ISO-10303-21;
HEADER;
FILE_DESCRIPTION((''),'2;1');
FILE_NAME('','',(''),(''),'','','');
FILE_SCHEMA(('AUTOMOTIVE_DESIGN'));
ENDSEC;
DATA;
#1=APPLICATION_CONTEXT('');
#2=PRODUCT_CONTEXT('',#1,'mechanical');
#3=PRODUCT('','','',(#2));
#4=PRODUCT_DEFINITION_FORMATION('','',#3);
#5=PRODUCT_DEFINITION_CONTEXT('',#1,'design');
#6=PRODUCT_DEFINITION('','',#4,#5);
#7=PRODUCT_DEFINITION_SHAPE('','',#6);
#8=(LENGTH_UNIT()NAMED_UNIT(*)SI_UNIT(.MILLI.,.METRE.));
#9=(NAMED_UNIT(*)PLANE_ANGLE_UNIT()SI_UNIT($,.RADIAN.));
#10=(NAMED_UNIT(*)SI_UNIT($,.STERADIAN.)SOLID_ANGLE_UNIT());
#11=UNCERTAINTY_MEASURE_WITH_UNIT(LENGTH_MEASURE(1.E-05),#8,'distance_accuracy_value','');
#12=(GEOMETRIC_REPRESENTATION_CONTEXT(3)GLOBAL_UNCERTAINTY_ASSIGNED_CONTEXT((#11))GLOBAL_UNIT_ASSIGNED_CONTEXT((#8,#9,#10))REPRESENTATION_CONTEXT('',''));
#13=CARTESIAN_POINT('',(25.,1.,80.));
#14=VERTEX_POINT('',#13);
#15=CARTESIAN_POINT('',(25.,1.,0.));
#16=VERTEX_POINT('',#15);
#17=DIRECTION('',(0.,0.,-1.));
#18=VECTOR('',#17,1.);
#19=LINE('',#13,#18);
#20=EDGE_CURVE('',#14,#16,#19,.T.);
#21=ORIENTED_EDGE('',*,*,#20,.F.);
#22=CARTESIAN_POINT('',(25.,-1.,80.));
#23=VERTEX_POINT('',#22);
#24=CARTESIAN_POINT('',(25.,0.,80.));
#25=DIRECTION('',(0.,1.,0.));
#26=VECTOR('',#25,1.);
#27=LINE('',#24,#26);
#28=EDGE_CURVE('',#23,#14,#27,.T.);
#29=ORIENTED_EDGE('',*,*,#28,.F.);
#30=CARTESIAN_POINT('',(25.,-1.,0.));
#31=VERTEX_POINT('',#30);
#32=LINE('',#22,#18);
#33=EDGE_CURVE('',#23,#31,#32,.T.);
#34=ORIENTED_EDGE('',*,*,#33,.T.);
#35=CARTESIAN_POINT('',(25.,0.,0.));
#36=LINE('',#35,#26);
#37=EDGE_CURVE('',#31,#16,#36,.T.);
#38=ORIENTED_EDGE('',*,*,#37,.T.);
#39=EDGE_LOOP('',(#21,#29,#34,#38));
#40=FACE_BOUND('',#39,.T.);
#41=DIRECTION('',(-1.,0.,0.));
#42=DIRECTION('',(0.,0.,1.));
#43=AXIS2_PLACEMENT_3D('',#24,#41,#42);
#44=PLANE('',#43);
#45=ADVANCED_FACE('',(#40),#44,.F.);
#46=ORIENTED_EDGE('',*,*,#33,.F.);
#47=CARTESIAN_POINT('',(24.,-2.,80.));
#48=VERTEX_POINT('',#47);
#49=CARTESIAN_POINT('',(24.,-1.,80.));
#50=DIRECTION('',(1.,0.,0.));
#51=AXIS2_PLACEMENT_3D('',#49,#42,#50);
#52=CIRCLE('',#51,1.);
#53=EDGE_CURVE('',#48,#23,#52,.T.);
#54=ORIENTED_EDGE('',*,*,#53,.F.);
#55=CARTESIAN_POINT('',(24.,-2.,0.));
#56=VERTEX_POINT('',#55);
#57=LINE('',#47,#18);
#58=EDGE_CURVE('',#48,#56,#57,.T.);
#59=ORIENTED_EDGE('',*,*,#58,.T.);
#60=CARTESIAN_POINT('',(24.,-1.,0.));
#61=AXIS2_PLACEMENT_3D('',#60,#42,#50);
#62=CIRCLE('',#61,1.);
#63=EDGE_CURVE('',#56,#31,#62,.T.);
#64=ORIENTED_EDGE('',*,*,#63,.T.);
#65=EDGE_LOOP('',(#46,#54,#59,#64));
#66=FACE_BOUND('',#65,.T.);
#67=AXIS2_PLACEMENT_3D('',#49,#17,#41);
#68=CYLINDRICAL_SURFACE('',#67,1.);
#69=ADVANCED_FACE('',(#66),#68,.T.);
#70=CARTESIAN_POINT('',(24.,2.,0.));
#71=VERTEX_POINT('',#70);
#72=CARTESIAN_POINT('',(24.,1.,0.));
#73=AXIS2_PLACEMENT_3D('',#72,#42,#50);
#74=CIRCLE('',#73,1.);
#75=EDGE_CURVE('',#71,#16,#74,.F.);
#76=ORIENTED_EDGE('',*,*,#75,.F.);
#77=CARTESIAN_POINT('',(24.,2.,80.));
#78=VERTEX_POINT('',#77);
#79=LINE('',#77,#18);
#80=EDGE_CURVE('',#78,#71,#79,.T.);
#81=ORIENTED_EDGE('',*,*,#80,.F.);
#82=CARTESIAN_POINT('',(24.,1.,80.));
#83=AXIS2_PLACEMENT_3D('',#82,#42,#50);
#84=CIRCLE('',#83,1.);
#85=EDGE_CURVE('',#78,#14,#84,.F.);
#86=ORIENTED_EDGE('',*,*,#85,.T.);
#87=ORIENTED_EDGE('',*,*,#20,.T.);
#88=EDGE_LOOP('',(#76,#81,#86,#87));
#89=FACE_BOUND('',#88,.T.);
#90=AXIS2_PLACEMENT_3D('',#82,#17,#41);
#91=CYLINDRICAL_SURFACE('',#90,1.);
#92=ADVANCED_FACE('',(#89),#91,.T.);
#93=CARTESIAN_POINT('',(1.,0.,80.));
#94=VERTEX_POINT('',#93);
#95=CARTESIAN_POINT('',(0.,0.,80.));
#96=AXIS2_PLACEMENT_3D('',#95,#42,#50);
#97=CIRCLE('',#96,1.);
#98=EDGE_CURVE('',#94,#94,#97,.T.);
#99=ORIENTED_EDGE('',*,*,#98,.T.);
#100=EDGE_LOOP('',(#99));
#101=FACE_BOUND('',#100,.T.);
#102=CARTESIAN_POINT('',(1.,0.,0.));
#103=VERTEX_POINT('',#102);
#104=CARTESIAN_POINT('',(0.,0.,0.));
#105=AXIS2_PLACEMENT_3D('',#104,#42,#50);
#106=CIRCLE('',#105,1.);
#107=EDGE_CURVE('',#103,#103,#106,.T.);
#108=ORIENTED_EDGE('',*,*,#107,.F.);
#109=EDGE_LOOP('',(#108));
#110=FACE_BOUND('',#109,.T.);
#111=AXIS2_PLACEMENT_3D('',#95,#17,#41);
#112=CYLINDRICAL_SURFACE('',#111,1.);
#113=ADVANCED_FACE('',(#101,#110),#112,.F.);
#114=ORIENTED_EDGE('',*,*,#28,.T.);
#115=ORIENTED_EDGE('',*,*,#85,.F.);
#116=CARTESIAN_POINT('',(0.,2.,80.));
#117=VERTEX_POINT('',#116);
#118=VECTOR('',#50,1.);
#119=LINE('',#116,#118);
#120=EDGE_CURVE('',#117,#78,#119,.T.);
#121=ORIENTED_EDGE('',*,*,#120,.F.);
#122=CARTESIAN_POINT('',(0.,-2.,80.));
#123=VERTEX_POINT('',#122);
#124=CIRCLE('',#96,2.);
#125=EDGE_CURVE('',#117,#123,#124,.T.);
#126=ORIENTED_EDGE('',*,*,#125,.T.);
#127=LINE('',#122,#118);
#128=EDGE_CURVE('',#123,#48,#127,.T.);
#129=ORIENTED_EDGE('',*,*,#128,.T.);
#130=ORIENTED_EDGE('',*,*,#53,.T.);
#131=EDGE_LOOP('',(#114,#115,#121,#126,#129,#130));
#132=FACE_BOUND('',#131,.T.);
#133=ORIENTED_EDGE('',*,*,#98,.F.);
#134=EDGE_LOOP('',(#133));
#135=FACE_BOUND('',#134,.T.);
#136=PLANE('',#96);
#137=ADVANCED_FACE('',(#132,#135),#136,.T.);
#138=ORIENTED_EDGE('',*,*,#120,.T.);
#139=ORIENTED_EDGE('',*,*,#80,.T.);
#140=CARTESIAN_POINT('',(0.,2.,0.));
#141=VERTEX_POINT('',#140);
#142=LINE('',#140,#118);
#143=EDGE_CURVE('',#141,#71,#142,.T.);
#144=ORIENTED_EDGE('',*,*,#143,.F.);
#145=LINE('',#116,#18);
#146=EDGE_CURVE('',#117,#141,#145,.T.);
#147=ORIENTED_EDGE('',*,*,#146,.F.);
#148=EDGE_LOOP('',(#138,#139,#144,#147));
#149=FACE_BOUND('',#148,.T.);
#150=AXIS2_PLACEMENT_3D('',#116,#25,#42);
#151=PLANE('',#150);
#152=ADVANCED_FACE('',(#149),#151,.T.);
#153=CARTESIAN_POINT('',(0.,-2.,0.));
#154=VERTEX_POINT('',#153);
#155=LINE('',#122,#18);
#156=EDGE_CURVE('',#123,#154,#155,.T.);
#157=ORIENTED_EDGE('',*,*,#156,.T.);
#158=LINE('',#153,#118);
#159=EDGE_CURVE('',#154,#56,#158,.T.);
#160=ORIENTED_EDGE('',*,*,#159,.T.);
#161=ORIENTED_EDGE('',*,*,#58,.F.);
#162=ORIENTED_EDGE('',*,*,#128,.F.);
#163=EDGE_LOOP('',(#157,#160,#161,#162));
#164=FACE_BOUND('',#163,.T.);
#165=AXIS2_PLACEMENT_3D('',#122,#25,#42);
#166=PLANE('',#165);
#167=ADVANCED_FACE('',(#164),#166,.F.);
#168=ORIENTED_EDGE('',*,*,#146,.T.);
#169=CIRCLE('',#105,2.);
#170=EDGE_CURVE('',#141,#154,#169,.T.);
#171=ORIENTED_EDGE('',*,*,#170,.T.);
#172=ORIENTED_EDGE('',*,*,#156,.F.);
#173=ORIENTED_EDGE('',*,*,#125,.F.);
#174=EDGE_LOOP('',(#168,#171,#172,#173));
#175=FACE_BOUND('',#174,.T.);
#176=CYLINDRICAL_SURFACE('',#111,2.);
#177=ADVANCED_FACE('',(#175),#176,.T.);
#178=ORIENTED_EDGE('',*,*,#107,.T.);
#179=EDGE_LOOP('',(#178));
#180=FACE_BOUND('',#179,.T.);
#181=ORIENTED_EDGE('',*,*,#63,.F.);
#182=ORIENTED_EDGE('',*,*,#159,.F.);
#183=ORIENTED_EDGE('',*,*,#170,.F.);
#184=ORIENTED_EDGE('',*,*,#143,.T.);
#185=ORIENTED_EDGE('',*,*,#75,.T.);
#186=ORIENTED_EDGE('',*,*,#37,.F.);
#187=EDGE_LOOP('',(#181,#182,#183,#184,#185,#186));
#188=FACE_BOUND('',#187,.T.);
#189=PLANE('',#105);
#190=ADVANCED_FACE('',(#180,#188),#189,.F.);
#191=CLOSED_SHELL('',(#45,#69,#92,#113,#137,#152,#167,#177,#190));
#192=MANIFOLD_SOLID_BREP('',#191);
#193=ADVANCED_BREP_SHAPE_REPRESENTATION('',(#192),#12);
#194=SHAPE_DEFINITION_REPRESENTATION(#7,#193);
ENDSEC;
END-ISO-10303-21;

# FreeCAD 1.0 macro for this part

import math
import FreeCAD as App
import Part
import Sketcher

V = App.Vector
Q = App.Units.Quantity

doc = App.newDocument("Part")
body = doc.addObject("PartDesign::Body", "Body")

# Sketch on XY plane
sketch1 = doc.addObject("Sketcher::SketchObject", "Sketch")
body.addObject(sketch1)
sketch1.AttachmentSupport = (doc.XY_Plane, [""])
sketch1.MapMode = "FlatFace"
sketch1.addGeometry([
    Part.ArcOfCircle(Part.Circle(V(0, 0, 0), V(0, 0, 1), 2), math.radians(90), math.radians(270)),  # 0
    Part.LineSegment(V(0, -2, 0), V(24, -2, 0)),  # 1
    Part.ArcOfCircle(Part.Circle(V(24, -1, 0), V(0, 0, 1), 1), math.radians(-90), math.radians(0)),  # 2
    Part.LineSegment(V(25, -1, 0), V(25, 1, 0)),  # 3
    Part.ArcOfCircle(Part.Circle(V(24, 1, 0), V(0, 0, 1), 1), math.radians(0), math.radians(90)),  # 4
    Part.LineSegment(V(24, 2, 0), V(0, 2, 0)),  # 5
    Part.ArcOfCircle(Part.Circle(V(0, 0, 0), V(0, 0, 1), 1), math.radians(90), math.radians(270)),  # 6
    Part.ArcOfCircle(Part.Circle(V(0, 0, 0), V(0, 0, 1), 1), math.radians(0), math.radians(90)),  # 7
    Part.ArcOfCircle(Part.Circle(V(0, 0, 0), V(0, 0, 1), 1), math.radians(-90), math.radians(0)),  # 8
], False)
sketch1.addConstraint([
    Sketcher.Constraint("Tangent", 0, 2, 1, 1),
    Sketcher.Constraint("Tangent", 1, 2, 2, 1),
    Sketcher.Constraint("Tangent", 2, 2, 3, 1),
    Sketcher.Constraint("Tangent", 3, 2, 4, 1),
    Sketcher.Constraint("Tangent", 4, 2, 5, 1),
    Sketcher.Constraint("Tangent", 5, 2, 0, 1),
    Sketcher.Constraint("Tangent", 6, 1, 7, 2),
    Sketcher.Constraint("Tangent", 7, 1, 8, 2),
    Sketcher.Constraint("Tangent", 8, 1, 6, 2),
    Sketcher.Constraint("Horizontal", 1),
    Sketcher.Constraint("Vertical", 3),
    Sketcher.Constraint("Horizontal", 5),
    Sketcher.Constraint("Coincident", 0, 3, -1, 1),
    Sketcher.Constraint("Coincident", 6, 3, -1, 1),
    Sketcher.Constraint("Equal", 2, 4),
    Sketcher.Constraint("Equal", 4, 6),
    Sketcher.Constraint("PointOnObject", 6, 1, -2),
    Sketcher.Constraint("PointOnObject", 7, 1, -1),
    Sketcher.Constraint("PointOnObject", 8, 1, -2),
    Sketcher.Constraint("Horizontal", 3, 2, 6, 1),
    Sketcher.Constraint("Radius", 0, Q("2 mm")),
    Sketcher.Constraint("DistanceX", 1, 1, 1, 2, Q("24 mm")),
])
pad1 = doc.addObject("PartDesign::Pad", "Pad")
body.addObject(pad1)
pad1.Profile = sketch1
pad1.Length = 80

doc.recompute()
